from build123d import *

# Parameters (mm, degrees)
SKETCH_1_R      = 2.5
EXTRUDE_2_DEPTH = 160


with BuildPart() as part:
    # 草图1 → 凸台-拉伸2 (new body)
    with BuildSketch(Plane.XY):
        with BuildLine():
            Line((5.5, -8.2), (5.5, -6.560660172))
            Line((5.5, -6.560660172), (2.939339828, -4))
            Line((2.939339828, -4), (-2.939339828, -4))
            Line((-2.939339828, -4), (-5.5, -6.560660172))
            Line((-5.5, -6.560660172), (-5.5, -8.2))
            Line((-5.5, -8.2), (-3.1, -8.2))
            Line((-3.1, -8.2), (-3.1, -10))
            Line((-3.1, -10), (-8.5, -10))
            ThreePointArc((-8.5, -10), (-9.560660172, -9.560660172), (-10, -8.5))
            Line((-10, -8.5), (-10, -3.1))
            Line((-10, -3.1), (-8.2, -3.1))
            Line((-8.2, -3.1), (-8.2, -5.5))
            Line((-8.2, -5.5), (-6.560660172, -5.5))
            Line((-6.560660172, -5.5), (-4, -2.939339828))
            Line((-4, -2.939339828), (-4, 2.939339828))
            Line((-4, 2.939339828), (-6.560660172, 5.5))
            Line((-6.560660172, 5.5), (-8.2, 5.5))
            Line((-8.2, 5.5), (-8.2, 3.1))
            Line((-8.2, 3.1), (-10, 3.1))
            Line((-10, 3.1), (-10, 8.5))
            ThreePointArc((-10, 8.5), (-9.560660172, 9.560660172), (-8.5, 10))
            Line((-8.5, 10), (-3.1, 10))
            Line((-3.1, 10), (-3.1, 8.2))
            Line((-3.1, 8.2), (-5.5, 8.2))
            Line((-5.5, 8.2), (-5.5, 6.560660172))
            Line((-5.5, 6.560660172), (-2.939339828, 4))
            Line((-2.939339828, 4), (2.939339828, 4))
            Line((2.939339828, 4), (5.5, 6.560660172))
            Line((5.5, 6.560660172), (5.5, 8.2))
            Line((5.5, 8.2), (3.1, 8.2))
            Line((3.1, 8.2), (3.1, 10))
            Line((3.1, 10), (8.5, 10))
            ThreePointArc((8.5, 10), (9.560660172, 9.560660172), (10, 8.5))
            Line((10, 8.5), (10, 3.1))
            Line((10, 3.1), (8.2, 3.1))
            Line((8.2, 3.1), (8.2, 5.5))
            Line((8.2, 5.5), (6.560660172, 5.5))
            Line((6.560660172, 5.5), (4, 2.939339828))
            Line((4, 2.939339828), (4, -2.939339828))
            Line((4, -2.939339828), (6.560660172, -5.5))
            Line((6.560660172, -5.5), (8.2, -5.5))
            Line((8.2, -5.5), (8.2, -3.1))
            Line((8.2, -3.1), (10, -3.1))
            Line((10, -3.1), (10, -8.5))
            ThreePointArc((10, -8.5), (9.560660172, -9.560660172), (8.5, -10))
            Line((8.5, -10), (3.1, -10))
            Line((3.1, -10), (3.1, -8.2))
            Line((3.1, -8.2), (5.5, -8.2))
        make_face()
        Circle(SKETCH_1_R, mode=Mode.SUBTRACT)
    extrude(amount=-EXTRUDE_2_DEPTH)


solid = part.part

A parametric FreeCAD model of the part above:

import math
import FreeCAD as App
import Part
import Sketcher

V = App.Vector

doc = App.newDocument("Part")
params = doc.addObject("Spreadsheet::Sheet", "Params")
for row, (alias, value) in enumerate([
    ("sketch1_diameter", "5 mm"),
    ("sketch1_radius", "1.5 mm"),
    ("sketch1_width", "2.4 mm"),
    ("sketch1_width2", "5.4 mm"),
    ("sketch1_width3", "1.8 mm"),
    ("pad1_length", "160 mm"),
], start=1):
    params.set(f"A{row}", alias)
    params.set(f"B{row}", "=" + value)
    params.setAlias(f"B{row}", alias)

body = doc.addObject("PartDesign::Body", "Body")

# Sketch on XY plane
sketch1 = body.newObject("Sketcher::SketchObject", "Sketch")
sketch1.AttachmentSupport = (doc.getObject("XY_Plane"), [""])
sketch1.MapMode = "FlatFace"
sketch1.addGeometry(Part.LineSegment(V(5.5, -6.6, 0), V(5.5, -8.2, 0)), False)
sketch1.addGeometry(Part.LineSegment(V(5.5, -8.2, 0), V(3.1, -8.2, 0)), False)
sketch1.addGeometry(Part.LineSegment(V(3.1, -8.2, 0), V(3.1, -10, 0)), False)
sketch1.addGeometry(Part.LineSegment(V(3.1, -10, 0), V(8.5, -10, 0)), False)
sketch1.addGeometry(Part.ArcOfCircle(Part.Circle(V(8.5, -8.5, 0), V(0, 0, 1), 1.5), math.radians(-90), math.radians(0)), False)
sketch1.addGeometry(Part.LineSegment(V(10, -8.5, 0), V(10, -3.1, 0)), False)
sketch1.addGeometry(Part.LineSegment(V(10, -3.1, 0), V(8.2, -3.1, 0)), False)
sketch1.addGeometry(Part.LineSegment(V(8.2, -3.1, 0), V(8.2, -5.5, 0)), False)
sketch1.addGeometry(Part.LineSegment(V(8.2, -5.5, 0), V(6.6, -5.5, 0)), False)
sketch1.addGeometry(Part.LineSegment(V(6.6, -5.5, 0), V(4, -2.9, 0)), False)
sketch1.addGeometry(Part.LineSegment(V(4, -2.9, 0), V(4, 2.9, 0)), False)
sketch1.addGeometry(Part.LineSegment(V(4, 2.9, 0), V(6.6, 5.5, 0)), False)
sketch1.addGeometry(Part.LineSegment(V(6.6, 5.5, 0), V(8.2, 5.5, 0)), False)
sketch1.addGeometry(Part.LineSegment(V(8.2, 5.5, 0), V(8.2, 3.1, 0)), False)
sketch1.addGeometry(Part.LineSegment(V(8.2, 3.1, 0), V(10, 3.1, 0)), False)
sketch1.addGeometry(Part.LineSegment(V(10, 3.1, 0), V(10, 8.5, 0)), False)
sketch1.addGeometry(Part.ArcOfCircle(Part.Circle(V(8.5, 8.5, 0), V(0, 0, 1), 1.5), math.radians(0), math.radians(90)), False)
sketch1.addGeometry(Part.LineSegment(V(8.5, 10, 0), V(3.1, 10, 0)), False)
sketch1.addGeometry(Part.LineSegment(V(3.1, 10, 0), V(3.1, 8.2, 0)), False)
sketch1.addGeometry(Part.LineSegment(V(3.1, 8.2, 0), V(5.5, 8.2, 0)), False)
sketch1.addGeometry(Part.LineSegment(V(5.5, 8.2, 0), V(5.5, 6.6, 0)), False)
sketch1.addGeometry(Part.LineSegment(V(5.5, 6.6, 0), V(2.9, 4, 0)), False)
sketch1.addGeometry(Part.LineSegment(V(2.9, 4, 0), V(-2.9, 4, 0)), False)
sketch1.addGeometry(Part.LineSegment(V(-2.9, 4, 0), V(-5.5, 6.6, 0)), False)
sketch1.addGeometry(Part.LineSegment(V(-5.5, 6.6, 0), V(-5.5, 8.2, 0)), False)
sketch1.addGeometry(Part.LineSegment(V(-5.5, 8.2, 0), V(-3.1, 8.2, 0)), False)
sketch1.addGeometry(Part.LineSegment(V(-3.1, 8.2, 0), V(-3.1, 10, 0)), False)
sketch1.addGeometry(Part.LineSegment(V(-3.1, 10, 0), V(-8.5, 10, 0)), False)
sketch1.addGeometry(Part.ArcOfCircle(Part.Circle(V(-8.5, 8.5, 0), V(0, 0, 1), 1.5), math.radians(90), math.radians(180)), False)
sketch1.addGeometry(Part.LineSegment(V(-10, 8.5, 0), V(-10, 3.1, 0)), False)
sketch1.addGeometry(Part.LineSegment(V(-10, 3.1, 0), V(-8.2, 3.1, 0)), False)
sketch1.addGeometry(Part.LineSegment(V(-8.2, 3.1, 0), V(-8.2, 5.5, 0)), False)
sketch1.addGeometry(Part.LineSegment(V(-8.2, 5.5, 0), V(-6.6, 5.5, 0)), False)
sketch1.addGeometry(Part.LineSegment(V(-6.6, 5.5, 0), V(-4, 2.9, 0)), False)
sketch1.addGeometry(Part.LineSegment(V(-4, 2.9, 0), V(-4, -2.9, 0)), False)
sketch1.addGeometry(Part.LineSegment(V(-4, -2.9, 0), V(-6.6, -5.5, 0)), False)
sketch1.addGeometry(Part.LineSegment(V(-6.6, -5.5, 0), V(-8.2, -5.5, 0)), False)
sketch1.addGeometry(Part.LineSegment(V(-8.2, -5.5, 0), V(-8.2, -3.1, 0)), False)
sketch1.addGeometry(Part.LineSegment(V(-8.2, -3.1, 0), V(-10, -3.1, 0)), False)
sketch1.addGeometry(Part.LineSegment(V(-10, -3.1, 0), V(-10, -8.5, 0)), False)
sketch1.addGeometry(Part.ArcOfCircle(Part.Circle(V(-8.5, -8.5, 0), V(0, 0, 1), 1.5), math.radians(180), math.radians(270)), False)
sketch1.addGeometry(Part.LineSegment(V(-8.5, -10, 0), V(-3.1, -10, 0)), False)
sketch1.addGeometry(Part.LineSegment(V(-3.1, -10, 0), V(-3.1, -8.2, 0)), False)
sketch1.addGeometry(Part.LineSegment(V(-3.1, -8.2, 0), V(-5.5, -8.2, 0)), False)
sketch1.addGeometry(Part.LineSegment(V(-5.5, -8.2, 0), V(-5.5, -6.6, 0)), False)
sketch1.addGeometry(Part.LineSegment(V(-5.5, -6.6, 0), V(-2.9, -4, 0)), False)
sketch1.addGeometry(Part.LineSegment(V(-2.9, -4, 0), V(2.9, -4, 0)), False)
sketch1.addGeometry(Part.LineSegment(V(2.9, -4, 0), V(5.5, -6.6, 0)), False)
sketch1.addGeometry(Part.Circle(V(0, 0, 0), V(0, 0, 1), 2.5), False)
sketch1.addConstraint(Sketcher.Constraint("Coincident", 0, 2, 1, 1))
sketch1.addConstraint(Sketcher.Constraint("Coincident", 1, 2, 2, 1))
sketch1.addConstraint(Sketcher.Constraint("Coincident", 2, 2, 3, 1))
sketch1.addConstraint(Sketcher.Constraint("Tangent", 3, 2, 4, 1))
sketch1.addConstraint(Sketcher.Constraint("Tangent", 4, 2, 5, 1))
sketch1.addConstraint(Sketcher.Constraint("Coincident", 5, 2, 6, 1))
sketch1.addConstraint(Sketcher.Constraint("Coincident", 6, 2, 7, 1))
sketch1.addConstraint(Sketcher.Constraint("Coincident", 7, 2, 8, 1))
sketch1.addConstraint(Sketcher.Constraint("Coincident", 8, 2, 9, 1))
sketch1.addConstraint(Sketcher.Constraint("Coincident", 9, 2, 10, 1))
sketch1.addConstraint(Sketcher.Constraint("Coincident", 10, 2, 11, 1))
sketch1.addConstraint(Sketcher.Constraint("Coincident", 11, 2, 12, 1))
sketch1.addConstraint(Sketcher.Constraint("Coincident", 12, 2, 13, 1))
sketch1.addConstraint(Sketcher.Constraint("Coincident", 13, 2, 14, 1))
sketch1.addConstraint(Sketcher.Constraint("Coincident", 14, 2, 15, 1))
sketch1.addConstraint(Sketcher.Constraint("Tangent", 15, 2, 16, 1))
sketch1.addConstraint(Sketcher.Constraint("Tangent", 16, 2, 17, 1))
sketch1.addConstraint(Sketcher.Constraint("Coincident", 17, 2, 18, 1))
sketch1.addConstraint(Sketcher.Constraint("Coincident", 18, 2, 19, 1))
sketch1.addConstraint(Sketcher.Constraint("Coincident", 19, 2, 20, 1))
sketch1.addConstraint(Sketcher.Constraint("Coincident", 20, 2, 21, 1))
sketch1.addConstraint(Sketcher.Constraint("Coincident", 21, 2, 22, 1))
sketch1.addConstraint(Sketcher.Constraint("Coincident", 22, 2, 23, 1))
sketch1.addConstraint(Sketcher.Constraint("Coincident", 23, 2, 24, 1))
sketch1.addConstraint(Sketcher.Constraint("Coincident", 24, 2, 25, 1))
sketch1.addConstraint(Sketcher.Constraint("Coincident", 25, 2, 26, 1))
sketch1.addConstraint(Sketcher.Constraint("Coincident", 26, 2, 27, 1))
sketch1.addConstraint(Sketcher.Constraint("Tangent", 27, 2, 28, 1))
sketch1.addConstraint(Sketcher.Constraint("Tangent", 28, 2, 29, 1))
sketch1.addConstraint(Sketcher.Constraint("Coincident", 29, 2, 30, 1))
sketch1.addConstraint(Sketcher.Constraint("Coincident", 30, 2, 31, 1))
sketch1.addConstraint(Sketcher.Constraint("Coincident", 31, 2, 32, 1))
sketch1.addConstraint(Sketcher.Constraint("Coincident", 32, 2, 33, 1))
sketch1.addConstraint(Sketcher.Constraint("Coincident", 33, 2, 34, 1))
sketch1.addConstraint(Sketcher.Constraint("Coincident", 34, 2, 35, 1))
sketch1.addConstraint(Sketcher.Constraint("Coincident", 35, 2, 36, 1))
sketch1.addConstraint(Sketcher.Constraint("Coincident", 36, 2, 37, 1))
sketch1.addConstraint(Sketcher.Constraint("Coincident", 37, 2, 38, 1))
sketch1.addConstraint(Sketcher.Constraint("Coincident", 38, 2, 39, 1))
sketch1.addConstraint(Sketcher.Constraint("Tangent", 39, 2, 40, 1))
sketch1.addConstraint(Sketcher.Constraint("Tangent", 40, 2, 41, 1))
sketch1.addConstraint(Sketcher.Constraint("Coincident", 41, 2, 42, 1))
sketch1.addConstraint(Sketcher.Constraint("Coincident", 42, 2, 43, 1))
sketch1.addConstraint(Sketcher.Constraint("Coincident", 43, 2, 44, 1))
sketch1.addConstraint(Sketcher.Constraint("Coincident", 44, 2, 45, 1))
sketch1.addConstraint(Sketcher.Constraint("Coincident", 45, 2, 46, 1))
sketch1.addConstraint(Sketcher.Constraint("Coincident", 46, 2, 47, 1))
sketch1.addConstraint(Sketcher.Constraint("Coincident", 47, 2, 0, 1))
sketch1.addConstraint(Sketcher.Constraint("Vertical", 0))
sketch1.addConstraint(Sketcher.Constraint("Horizontal", 1))
sketch1.addConstraint(Sketcher.Constraint("Vertical", 2))
sketch1.addConstraint(Sketcher.Constraint("Horizontal", 3))
sketch1.addConstraint(Sketcher.Constraint("Vertical", 5))
sketch1.addConstraint(Sketcher.Constraint("Horizontal", 6))
sketch1.addConstraint(Sketcher.Constraint("Vertical", 7))
sketch1.addConstraint(Sketcher.Constraint("Horizontal", 8))
sketch1.addConstraint(Sketcher.Constraint("Vertical", 10))
sketch1.addConstraint(Sketcher.Constraint("Horizontal", 12))
sketch1.addConstraint(Sketcher.Constraint("Vertical", 13))
sketch1.addConstraint(Sketcher.Constraint("Horizontal", 14))
sketch1.addConstraint(Sketcher.Constraint("Vertical", 15))
sketch1.addConstraint(Sketcher.Constraint("Horizontal", 17))
sketch1.addConstraint(Sketcher.Constraint("Vertical", 18))
sketch1.addConstraint(Sketcher.Constraint("Horizontal", 19))
sketch1.addConstraint(Sketcher.Constraint("Vertical", 20))
sketch1.addConstraint(Sketcher.Constraint("Horizontal", 22))
sketch1.addConstraint(Sketcher.Constraint("Vertical", 24))
sketch1.addConstraint(Sketcher.Constraint("Horizontal", 25))
sketch1.addConstraint(Sketcher.Constraint("Vertical", 26))
sketch1.addConstraint(Sketcher.Constraint("Horizontal", 27))
sketch1.addConstraint(Sketcher.Constraint("Vertical", 29))
sketch1.addConstraint(Sketcher.Constraint("Horizontal", 30))
sketch1.addConstraint(Sketcher.Constraint("Vertical", 31))
sketch1.addConstraint(Sketcher.Constraint("Horizontal", 32))
sketch1.addConstraint(Sketcher.Constraint("Vertical", 34))
sketch1.addConstraint(Sketcher.Constraint("Horizontal", 36))
sketch1.addConstraint(Sketcher.Constraint("Vertical", 37))
sketch1.addConstraint(Sketcher.Constraint("Horizontal", 38))
sketch1.addConstraint(Sketcher.Constraint("Vertical", 39))
sketch1.addConstraint(Sketcher.Constraint("Horizontal", 41))
sketch1.addConstraint(Sketcher.Constraint("Vertical", 42))
sketch1.addConstraint(Sketcher.Constraint("Horizontal", 43))
sketch1.addConstraint(Sketcher.Constraint("Vertical", 44))
sketch1.addConstraint(Sketcher.Constraint("Horizontal", 46))
sketch1.addConstraint(Sketcher.Constraint("Coincident", 48, 3, -1, 1))
sketch1.addConstraint(Sketcher.Constraint("Equal", 4, 16))
sketch1.addConstraint(Sketcher.Constraint("Equal", 16, 28))
sketch1.addConstraint(Sketcher.Constraint("Equal", 28, 40))
sketch1.addConstraint(Sketcher.Constraint("Symmetric", 4, 3, 28, 3, -1, 1))
sketch1.addConstraint(Sketcher.Constraint("Symmetric", 16, 3, 40, 3, -1, 1))
sketch1.addConstraint(Sketcher.Constraint("Symmetric", 0, 2, 24, 2, -1, 1))
sketch1.addConstraint(Sketcher.Constraint("Symmetric", 6, 2, 30, 2, -1, 1))
sketch1.addConstraint(Sketcher.Constraint("Symmetric", 8, 2, 32, 2, -1, 1))
sketch1.addConstraint(Sketcher.Constraint("Symmetric", 9, 2, 33, 2, -1, 1))
sketch1.addConstraint(Sketcher.Constraint("Symmetric", 11, 2, 35, 2, -1, 1))
sketch1.addConstraint(Sketcher.Constraint("Symmetric", 13, 2, 37, 2, -1, 1))
sketch1.addConstraint(Sketcher.Constraint("Symmetric", 18, 2, 42, 2, -1, 1))
sketch1.addConstraint(Sketcher.Constraint("Symmetric", 20, 2, 44, 2, -1, 1))
sketch1.addConstraint(Sketcher.Constraint("Symmetric", 21, 2, 45, 2, -1, 1))
sketch1.addConstraint(Sketcher.Constraint("Symmetric", 16, 3, 28, 3, -2))
sketch1.addConstraint(Sketcher.Constraint("Symmetric", 20, 2, 23, 2, -2))
sketch1.addConstraint(Sketcher.Constraint("Symmetric", 18, 2, 25, 2, -2))
sketch1.addConstraint(Sketcher.Constraint("Symmetric", 13, 2, 30, 2, -2))
sketch1.addConstraint(Sketcher.Constraint("Symmetric", 11, 2, 32, 2, -2))
sketch1.addConstraint(Sketcher.Constraint("Perpendicular", 9, 11))
sketch1.addConstraint(Sketcher.Constraint("Parallel", 11, 21))
sketch1.addConstraint(Sketcher.Constraint("Perpendicular", 21, 23))
sketch1.addConstraint(Sketcher.Constraint("Perpendicular", 33, 35))
sketch1.addConstraint(Sketcher.Constraint("Perpendicular", 45, 47))
sketch1.addConstraint(Sketcher.Constraint("Horizontal", 10, 2, 33, 2))
sketch1.addConstraint(Sketcher.Constraint("Horizontal", 44, 2, 47, 2))
sketch1.addConstraint(Sketcher.Constraint("Vertical", 2, 2, 17, 2))
sketch1.addConstraint(Sketcher.Constraint("Equal", 36, 0))
sketch1.addConstraint(Sketcher.Constraint("Equal", 38, 2))
sketch1.addConstraint(Sketcher.Constraint("Equal", 41, 5))
sketch1.addConstraint(Sketcher.Constraint("Equal", 43, 7))
sketch1.addConstraint(Sketcher.Constraint("Equal", 46, 10))
sketch1.addConstraint(Sketcher.Constraint("Equal", 11, 21))
sketch1.addConstraint(Sketcher.Constraint("Diameter", 48, 5.0))
sketch1.addConstraint(Sketcher.Constraint("Radius", 4, 1.5))
sketch1.addConstraint(Sketcher.Constraint("DistanceX", 1, 2, 1, 1, 2.4))
sketch1.addConstraint(Sketcher.Constraint("DistanceX", 3, 1, 3, 2, 5.4))
sketch1.addConstraint(Sketcher.Constraint("DistanceX", 6, 2, 6, 1, 1.8))
sketch1.addConstraint(Sketcher.Constraint("DistanceY", 2, 2, -1, 1, 10.0))
sketch1.addConstraint(Sketcher.Constraint("DistanceX", -1, 1, 9, 2, 4.0))
sketch1.addConstraint(Sketcher.Constraint("DistanceX", 8, 2, 8, 1, 1.63934))
sketch1.setExpression("Constraints[118]", "Params.sketch1_diameter")
sketch1.setExpression("Constraints[119]", "Params.sketch1_radius")
sketch1.setExpression("Constraints[120]", "Params.sketch1_width")
sketch1.setExpression("Constraints[121]", "Params.sketch1_width2")
sketch1.setExpression("Constraints[122]", "Params.sketch1_width3")
pad1 = body.newObject("PartDesign::Pad", "Pad")
pad1.Profile = sketch1
pad1.setExpression("Length", "Params.pad1_length")
pad1.Reversed = True

doc.recompute()
